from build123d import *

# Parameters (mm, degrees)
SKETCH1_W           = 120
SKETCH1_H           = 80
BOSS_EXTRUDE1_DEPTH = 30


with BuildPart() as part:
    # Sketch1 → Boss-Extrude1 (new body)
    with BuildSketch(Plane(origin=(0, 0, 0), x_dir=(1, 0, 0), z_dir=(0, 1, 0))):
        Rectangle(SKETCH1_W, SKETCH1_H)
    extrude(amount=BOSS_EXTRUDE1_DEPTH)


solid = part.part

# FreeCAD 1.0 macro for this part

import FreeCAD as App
import Part
import Sketcher
from FreeCAD import Vector
Q = App.Units.Quantity

doc = App.newDocument("Part")
params = doc.addObject("Spreadsheet::Sheet", "Params")
for row, (alias, value) in enumerate([
    ("sketch1_width", "120 mm"),
    ("sketch1_height", "80 mm"),
    ("pad1_length", "30 mm"),
], start=1):
    params.set(f"A{row}", alias)
    params.set(f"B{row}", "=" + value)
    params.setAlias(f"B{row}", alias)

body = doc.addObject("PartDesign::Body", "Body")

# Sketch on XZ plane
sketch1 = body.newObject("Sketcher::SketchObject", "Sketch")
sketch1.AttachmentSupport = (doc.getObject("XZ_Plane"), [""])
sketch1.MapMode = "FlatFace"
sketch1.addGeometry(Part.LineSegment(Vector(-60, -40, 0), Vector(-60, 40, 0)), False)
sketch1.addGeometry(Part.LineSegment(Vector(-60, 40, 0), Vector(60, 40, 0)), False)
sketch1.addGeometry(Part.LineSegment(Vector(60, 40, 0), Vector(60, -40, 0)), False)
sketch1.addGeometry(Part.LineSegment(Vector(60, -40, 0), Vector(-60, -40, 0)), False)
sketch1.addConstraint(Sketcher.Constraint("Coincident", 0, 2, 1, 1))
sketch1.addConstraint(Sketcher.Constraint("Coincident", 1, 2, 2, 1))
sketch1.addConstraint(Sketcher.Constraint("Coincident", 2, 2, 3, 1))
sketch1.addConstraint(Sketcher.Constraint("Coincident", 3, 2, 0, 1))
sketch1.addConstraint(Sketcher.Constraint("Vertical", 0))
sketch1.addConstraint(Sketcher.Constraint("Horizontal", 1))
sketch1.addConstraint(Sketcher.Constraint("Vertical", 2))
sketch1.addConstraint(Sketcher.Constraint("Horizontal", 3))
sketch1.addConstraint(Sketcher.Constraint("Symmetric", 0, 2, 2, 2, -1, 1))
sketch1.addConstraint(Sketcher.Constraint("DistanceX", 1, 1, 1, 2, Q("120 mm")))
sketch1.addConstraint(Sketcher.Constraint("DistanceY", 0, 1, 0, 2, Q("80 mm")))
sketch1.setExpression("Constraints[9]", "Params.sketch1_width")
sketch1.setExpression("Constraints[10]", "Params.sketch1_height")
pad1 = body.newObject("PartDesign::Pad", "Pad")
pad1.Profile = sketch1
pad1.setExpression("Length", "Params.pad1_length")
pad1.Reversed = True

doc.recompute()
